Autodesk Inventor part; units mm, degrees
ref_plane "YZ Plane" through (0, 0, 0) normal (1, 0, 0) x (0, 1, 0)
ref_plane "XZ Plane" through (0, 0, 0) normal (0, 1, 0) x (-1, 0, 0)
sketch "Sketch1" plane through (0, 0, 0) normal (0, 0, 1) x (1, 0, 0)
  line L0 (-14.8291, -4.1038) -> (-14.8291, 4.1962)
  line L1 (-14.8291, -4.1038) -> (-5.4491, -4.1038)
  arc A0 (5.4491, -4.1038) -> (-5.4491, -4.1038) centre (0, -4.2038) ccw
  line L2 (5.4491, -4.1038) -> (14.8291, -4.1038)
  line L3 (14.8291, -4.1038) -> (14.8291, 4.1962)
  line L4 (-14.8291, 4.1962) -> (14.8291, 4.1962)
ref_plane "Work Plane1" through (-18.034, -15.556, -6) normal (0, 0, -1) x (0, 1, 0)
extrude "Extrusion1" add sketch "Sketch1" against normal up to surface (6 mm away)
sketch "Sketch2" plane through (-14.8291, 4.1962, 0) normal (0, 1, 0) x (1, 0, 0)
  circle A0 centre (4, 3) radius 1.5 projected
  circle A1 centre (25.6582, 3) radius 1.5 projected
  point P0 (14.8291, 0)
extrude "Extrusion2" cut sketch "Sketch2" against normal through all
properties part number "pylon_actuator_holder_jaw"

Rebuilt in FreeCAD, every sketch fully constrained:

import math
import FreeCAD as App
import Part
import Sketcher
Q = App.Units.Quantity

doc = App.newDocument("Part")
body = doc.addObject("PartDesign::Body", "Body")

# Sketch on XY plane
sketch1 = doc.addObject("Sketcher::SketchObject", "Sketch")
body.addObject(sketch1)
sketch1.AttachmentSupport = (doc.XY_Plane, [""])
sketch1.MapMode = "FlatFace"
sketch1.addGeometry(Part.LineSegment(App.Vector(-15, 4, 0), App.Vector(-15, -4, 0)), False)
sketch1.addGeometry(Part.LineSegment(App.Vector(-15, -4, 0), App.Vector(-5, -4, 0)), False)
sketch1.addGeometry(Part.ArcOfCircle(Part.Circle(App.Vector(0, -4, 0), App.Vector(0, 0, 1), 5), math.radians(1), math.radians(179)), False)
sketch1.addGeometry(Part.LineSegment(App.Vector(5, -4, 0), App.Vector(15, -4, 0)), False)
sketch1.addGeometry(Part.LineSegment(App.Vector(15, -4, 0), App.Vector(15, 4, 0)), False)
sketch1.addGeometry(Part.LineSegment(App.Vector(15, 4, 0), App.Vector(-15, 4, 0)), False)
sketch1.addConstraint(Sketcher.Constraint("Coincident", 0, 2, 1, 1))
sketch1.addConstraint(Sketcher.Constraint("Coincident", 1, 2, 2, 2))
sketch1.addConstraint(Sketcher.Constraint("Coincident", 2, 1, 3, 1))
sketch1.addConstraint(Sketcher.Constraint("Coincident", 3, 2, 4, 1))
sketch1.addConstraint(Sketcher.Constraint("Coincident", 4, 2, 5, 1))
sketch1.addConstraint(Sketcher.Constraint("Coincident", 5, 2, 0, 1))
sketch1.addConstraint(Sketcher.Constraint("Vertical", 0))
sketch1.addConstraint(Sketcher.Constraint("Horizontal", 1))
sketch1.addConstraint(Sketcher.Constraint("Horizontal", 3))
sketch1.addConstraint(Sketcher.Constraint("Vertical", 4))
sketch1.addConstraint(Sketcher.Constraint("Horizontal", 5))
sketch1.addConstraint(Sketcher.Constraint("Symmetric", 1, 2, 2, 1, -2))
sketch1.addConstraint(Sketcher.Constraint("Equal", 1, 3))
sketch1.addConstraint(Sketcher.Constraint("Radius", 2, Q("5.45 mm")))
sketch1.addConstraint(Sketcher.Constraint("DistanceY", 0, 2, 0, 1, Q("8.3 mm")))
sketch1.addConstraint(Sketcher.Constraint("DistanceX", 1, 1, 1, 2, Q("9.38 mm")))
sketch1.addConstraint(Sketcher.Constraint("DistanceY", 2, 3, 0, 2, Q("0.1 mm")))
sketch1.addConstraint(Sketcher.Constraint("DistanceY", 2, 3, -1, 1, Q("4.2038 mm")))
pad1 = doc.addObject("PartDesign::Pad", "Pad")
body.addObject(pad1)
pad1.Profile = sketch1
pad1.Length = 6
pad1.Reversed = True

# Sketch on XZ plane
sketch2 = doc.addObject("Sketcher::SketchObject", "Sketch001")
body.addObject(sketch2)
sketch2.AttachmentSupport = (doc.XZ_Plane, [""])
sketch2.MapMode = "FlatFace"
sketch2.AttachmentOffset = App.Placement(App.Vector(0, 0, -4.1962), App.Rotation())
sketch2.addGeometry(Part.Circle(App.Vector(-10.8, -3, 0), App.Vector(0, 0, 1), 1.5), False)
sketch2.addGeometry(Part.Circle(App.Vector(10.8, -3, 0), App.Vector(0, 0, 1), 1.5), False)
sketch2.addConstraint(Sketcher.Constraint("Equal", 0, 1))
sketch2.addConstraint(Sketcher.Constraint("Symmetric", 0, 3, 1, 3, -2))
sketch2.addConstraint(Sketcher.Constraint("Diameter", 0, Q("3 mm")))
sketch2.addConstraint(Sketcher.Constraint("DistanceY", 0, 3, -1, 1, Q("3 mm")))
sketch2.addConstraint(Sketcher.Constraint("DistanceX", 0, 3, -1, 1, Q("10.829 mm")))
pocket1 = doc.addObject("PartDesign::Pocket", "Pocket")
body.addObject(pocket1)
pocket1.Profile = sketch2
pocket1.Type = "ThroughAll"
pocket1.Reversed = True

doc.recompute()
